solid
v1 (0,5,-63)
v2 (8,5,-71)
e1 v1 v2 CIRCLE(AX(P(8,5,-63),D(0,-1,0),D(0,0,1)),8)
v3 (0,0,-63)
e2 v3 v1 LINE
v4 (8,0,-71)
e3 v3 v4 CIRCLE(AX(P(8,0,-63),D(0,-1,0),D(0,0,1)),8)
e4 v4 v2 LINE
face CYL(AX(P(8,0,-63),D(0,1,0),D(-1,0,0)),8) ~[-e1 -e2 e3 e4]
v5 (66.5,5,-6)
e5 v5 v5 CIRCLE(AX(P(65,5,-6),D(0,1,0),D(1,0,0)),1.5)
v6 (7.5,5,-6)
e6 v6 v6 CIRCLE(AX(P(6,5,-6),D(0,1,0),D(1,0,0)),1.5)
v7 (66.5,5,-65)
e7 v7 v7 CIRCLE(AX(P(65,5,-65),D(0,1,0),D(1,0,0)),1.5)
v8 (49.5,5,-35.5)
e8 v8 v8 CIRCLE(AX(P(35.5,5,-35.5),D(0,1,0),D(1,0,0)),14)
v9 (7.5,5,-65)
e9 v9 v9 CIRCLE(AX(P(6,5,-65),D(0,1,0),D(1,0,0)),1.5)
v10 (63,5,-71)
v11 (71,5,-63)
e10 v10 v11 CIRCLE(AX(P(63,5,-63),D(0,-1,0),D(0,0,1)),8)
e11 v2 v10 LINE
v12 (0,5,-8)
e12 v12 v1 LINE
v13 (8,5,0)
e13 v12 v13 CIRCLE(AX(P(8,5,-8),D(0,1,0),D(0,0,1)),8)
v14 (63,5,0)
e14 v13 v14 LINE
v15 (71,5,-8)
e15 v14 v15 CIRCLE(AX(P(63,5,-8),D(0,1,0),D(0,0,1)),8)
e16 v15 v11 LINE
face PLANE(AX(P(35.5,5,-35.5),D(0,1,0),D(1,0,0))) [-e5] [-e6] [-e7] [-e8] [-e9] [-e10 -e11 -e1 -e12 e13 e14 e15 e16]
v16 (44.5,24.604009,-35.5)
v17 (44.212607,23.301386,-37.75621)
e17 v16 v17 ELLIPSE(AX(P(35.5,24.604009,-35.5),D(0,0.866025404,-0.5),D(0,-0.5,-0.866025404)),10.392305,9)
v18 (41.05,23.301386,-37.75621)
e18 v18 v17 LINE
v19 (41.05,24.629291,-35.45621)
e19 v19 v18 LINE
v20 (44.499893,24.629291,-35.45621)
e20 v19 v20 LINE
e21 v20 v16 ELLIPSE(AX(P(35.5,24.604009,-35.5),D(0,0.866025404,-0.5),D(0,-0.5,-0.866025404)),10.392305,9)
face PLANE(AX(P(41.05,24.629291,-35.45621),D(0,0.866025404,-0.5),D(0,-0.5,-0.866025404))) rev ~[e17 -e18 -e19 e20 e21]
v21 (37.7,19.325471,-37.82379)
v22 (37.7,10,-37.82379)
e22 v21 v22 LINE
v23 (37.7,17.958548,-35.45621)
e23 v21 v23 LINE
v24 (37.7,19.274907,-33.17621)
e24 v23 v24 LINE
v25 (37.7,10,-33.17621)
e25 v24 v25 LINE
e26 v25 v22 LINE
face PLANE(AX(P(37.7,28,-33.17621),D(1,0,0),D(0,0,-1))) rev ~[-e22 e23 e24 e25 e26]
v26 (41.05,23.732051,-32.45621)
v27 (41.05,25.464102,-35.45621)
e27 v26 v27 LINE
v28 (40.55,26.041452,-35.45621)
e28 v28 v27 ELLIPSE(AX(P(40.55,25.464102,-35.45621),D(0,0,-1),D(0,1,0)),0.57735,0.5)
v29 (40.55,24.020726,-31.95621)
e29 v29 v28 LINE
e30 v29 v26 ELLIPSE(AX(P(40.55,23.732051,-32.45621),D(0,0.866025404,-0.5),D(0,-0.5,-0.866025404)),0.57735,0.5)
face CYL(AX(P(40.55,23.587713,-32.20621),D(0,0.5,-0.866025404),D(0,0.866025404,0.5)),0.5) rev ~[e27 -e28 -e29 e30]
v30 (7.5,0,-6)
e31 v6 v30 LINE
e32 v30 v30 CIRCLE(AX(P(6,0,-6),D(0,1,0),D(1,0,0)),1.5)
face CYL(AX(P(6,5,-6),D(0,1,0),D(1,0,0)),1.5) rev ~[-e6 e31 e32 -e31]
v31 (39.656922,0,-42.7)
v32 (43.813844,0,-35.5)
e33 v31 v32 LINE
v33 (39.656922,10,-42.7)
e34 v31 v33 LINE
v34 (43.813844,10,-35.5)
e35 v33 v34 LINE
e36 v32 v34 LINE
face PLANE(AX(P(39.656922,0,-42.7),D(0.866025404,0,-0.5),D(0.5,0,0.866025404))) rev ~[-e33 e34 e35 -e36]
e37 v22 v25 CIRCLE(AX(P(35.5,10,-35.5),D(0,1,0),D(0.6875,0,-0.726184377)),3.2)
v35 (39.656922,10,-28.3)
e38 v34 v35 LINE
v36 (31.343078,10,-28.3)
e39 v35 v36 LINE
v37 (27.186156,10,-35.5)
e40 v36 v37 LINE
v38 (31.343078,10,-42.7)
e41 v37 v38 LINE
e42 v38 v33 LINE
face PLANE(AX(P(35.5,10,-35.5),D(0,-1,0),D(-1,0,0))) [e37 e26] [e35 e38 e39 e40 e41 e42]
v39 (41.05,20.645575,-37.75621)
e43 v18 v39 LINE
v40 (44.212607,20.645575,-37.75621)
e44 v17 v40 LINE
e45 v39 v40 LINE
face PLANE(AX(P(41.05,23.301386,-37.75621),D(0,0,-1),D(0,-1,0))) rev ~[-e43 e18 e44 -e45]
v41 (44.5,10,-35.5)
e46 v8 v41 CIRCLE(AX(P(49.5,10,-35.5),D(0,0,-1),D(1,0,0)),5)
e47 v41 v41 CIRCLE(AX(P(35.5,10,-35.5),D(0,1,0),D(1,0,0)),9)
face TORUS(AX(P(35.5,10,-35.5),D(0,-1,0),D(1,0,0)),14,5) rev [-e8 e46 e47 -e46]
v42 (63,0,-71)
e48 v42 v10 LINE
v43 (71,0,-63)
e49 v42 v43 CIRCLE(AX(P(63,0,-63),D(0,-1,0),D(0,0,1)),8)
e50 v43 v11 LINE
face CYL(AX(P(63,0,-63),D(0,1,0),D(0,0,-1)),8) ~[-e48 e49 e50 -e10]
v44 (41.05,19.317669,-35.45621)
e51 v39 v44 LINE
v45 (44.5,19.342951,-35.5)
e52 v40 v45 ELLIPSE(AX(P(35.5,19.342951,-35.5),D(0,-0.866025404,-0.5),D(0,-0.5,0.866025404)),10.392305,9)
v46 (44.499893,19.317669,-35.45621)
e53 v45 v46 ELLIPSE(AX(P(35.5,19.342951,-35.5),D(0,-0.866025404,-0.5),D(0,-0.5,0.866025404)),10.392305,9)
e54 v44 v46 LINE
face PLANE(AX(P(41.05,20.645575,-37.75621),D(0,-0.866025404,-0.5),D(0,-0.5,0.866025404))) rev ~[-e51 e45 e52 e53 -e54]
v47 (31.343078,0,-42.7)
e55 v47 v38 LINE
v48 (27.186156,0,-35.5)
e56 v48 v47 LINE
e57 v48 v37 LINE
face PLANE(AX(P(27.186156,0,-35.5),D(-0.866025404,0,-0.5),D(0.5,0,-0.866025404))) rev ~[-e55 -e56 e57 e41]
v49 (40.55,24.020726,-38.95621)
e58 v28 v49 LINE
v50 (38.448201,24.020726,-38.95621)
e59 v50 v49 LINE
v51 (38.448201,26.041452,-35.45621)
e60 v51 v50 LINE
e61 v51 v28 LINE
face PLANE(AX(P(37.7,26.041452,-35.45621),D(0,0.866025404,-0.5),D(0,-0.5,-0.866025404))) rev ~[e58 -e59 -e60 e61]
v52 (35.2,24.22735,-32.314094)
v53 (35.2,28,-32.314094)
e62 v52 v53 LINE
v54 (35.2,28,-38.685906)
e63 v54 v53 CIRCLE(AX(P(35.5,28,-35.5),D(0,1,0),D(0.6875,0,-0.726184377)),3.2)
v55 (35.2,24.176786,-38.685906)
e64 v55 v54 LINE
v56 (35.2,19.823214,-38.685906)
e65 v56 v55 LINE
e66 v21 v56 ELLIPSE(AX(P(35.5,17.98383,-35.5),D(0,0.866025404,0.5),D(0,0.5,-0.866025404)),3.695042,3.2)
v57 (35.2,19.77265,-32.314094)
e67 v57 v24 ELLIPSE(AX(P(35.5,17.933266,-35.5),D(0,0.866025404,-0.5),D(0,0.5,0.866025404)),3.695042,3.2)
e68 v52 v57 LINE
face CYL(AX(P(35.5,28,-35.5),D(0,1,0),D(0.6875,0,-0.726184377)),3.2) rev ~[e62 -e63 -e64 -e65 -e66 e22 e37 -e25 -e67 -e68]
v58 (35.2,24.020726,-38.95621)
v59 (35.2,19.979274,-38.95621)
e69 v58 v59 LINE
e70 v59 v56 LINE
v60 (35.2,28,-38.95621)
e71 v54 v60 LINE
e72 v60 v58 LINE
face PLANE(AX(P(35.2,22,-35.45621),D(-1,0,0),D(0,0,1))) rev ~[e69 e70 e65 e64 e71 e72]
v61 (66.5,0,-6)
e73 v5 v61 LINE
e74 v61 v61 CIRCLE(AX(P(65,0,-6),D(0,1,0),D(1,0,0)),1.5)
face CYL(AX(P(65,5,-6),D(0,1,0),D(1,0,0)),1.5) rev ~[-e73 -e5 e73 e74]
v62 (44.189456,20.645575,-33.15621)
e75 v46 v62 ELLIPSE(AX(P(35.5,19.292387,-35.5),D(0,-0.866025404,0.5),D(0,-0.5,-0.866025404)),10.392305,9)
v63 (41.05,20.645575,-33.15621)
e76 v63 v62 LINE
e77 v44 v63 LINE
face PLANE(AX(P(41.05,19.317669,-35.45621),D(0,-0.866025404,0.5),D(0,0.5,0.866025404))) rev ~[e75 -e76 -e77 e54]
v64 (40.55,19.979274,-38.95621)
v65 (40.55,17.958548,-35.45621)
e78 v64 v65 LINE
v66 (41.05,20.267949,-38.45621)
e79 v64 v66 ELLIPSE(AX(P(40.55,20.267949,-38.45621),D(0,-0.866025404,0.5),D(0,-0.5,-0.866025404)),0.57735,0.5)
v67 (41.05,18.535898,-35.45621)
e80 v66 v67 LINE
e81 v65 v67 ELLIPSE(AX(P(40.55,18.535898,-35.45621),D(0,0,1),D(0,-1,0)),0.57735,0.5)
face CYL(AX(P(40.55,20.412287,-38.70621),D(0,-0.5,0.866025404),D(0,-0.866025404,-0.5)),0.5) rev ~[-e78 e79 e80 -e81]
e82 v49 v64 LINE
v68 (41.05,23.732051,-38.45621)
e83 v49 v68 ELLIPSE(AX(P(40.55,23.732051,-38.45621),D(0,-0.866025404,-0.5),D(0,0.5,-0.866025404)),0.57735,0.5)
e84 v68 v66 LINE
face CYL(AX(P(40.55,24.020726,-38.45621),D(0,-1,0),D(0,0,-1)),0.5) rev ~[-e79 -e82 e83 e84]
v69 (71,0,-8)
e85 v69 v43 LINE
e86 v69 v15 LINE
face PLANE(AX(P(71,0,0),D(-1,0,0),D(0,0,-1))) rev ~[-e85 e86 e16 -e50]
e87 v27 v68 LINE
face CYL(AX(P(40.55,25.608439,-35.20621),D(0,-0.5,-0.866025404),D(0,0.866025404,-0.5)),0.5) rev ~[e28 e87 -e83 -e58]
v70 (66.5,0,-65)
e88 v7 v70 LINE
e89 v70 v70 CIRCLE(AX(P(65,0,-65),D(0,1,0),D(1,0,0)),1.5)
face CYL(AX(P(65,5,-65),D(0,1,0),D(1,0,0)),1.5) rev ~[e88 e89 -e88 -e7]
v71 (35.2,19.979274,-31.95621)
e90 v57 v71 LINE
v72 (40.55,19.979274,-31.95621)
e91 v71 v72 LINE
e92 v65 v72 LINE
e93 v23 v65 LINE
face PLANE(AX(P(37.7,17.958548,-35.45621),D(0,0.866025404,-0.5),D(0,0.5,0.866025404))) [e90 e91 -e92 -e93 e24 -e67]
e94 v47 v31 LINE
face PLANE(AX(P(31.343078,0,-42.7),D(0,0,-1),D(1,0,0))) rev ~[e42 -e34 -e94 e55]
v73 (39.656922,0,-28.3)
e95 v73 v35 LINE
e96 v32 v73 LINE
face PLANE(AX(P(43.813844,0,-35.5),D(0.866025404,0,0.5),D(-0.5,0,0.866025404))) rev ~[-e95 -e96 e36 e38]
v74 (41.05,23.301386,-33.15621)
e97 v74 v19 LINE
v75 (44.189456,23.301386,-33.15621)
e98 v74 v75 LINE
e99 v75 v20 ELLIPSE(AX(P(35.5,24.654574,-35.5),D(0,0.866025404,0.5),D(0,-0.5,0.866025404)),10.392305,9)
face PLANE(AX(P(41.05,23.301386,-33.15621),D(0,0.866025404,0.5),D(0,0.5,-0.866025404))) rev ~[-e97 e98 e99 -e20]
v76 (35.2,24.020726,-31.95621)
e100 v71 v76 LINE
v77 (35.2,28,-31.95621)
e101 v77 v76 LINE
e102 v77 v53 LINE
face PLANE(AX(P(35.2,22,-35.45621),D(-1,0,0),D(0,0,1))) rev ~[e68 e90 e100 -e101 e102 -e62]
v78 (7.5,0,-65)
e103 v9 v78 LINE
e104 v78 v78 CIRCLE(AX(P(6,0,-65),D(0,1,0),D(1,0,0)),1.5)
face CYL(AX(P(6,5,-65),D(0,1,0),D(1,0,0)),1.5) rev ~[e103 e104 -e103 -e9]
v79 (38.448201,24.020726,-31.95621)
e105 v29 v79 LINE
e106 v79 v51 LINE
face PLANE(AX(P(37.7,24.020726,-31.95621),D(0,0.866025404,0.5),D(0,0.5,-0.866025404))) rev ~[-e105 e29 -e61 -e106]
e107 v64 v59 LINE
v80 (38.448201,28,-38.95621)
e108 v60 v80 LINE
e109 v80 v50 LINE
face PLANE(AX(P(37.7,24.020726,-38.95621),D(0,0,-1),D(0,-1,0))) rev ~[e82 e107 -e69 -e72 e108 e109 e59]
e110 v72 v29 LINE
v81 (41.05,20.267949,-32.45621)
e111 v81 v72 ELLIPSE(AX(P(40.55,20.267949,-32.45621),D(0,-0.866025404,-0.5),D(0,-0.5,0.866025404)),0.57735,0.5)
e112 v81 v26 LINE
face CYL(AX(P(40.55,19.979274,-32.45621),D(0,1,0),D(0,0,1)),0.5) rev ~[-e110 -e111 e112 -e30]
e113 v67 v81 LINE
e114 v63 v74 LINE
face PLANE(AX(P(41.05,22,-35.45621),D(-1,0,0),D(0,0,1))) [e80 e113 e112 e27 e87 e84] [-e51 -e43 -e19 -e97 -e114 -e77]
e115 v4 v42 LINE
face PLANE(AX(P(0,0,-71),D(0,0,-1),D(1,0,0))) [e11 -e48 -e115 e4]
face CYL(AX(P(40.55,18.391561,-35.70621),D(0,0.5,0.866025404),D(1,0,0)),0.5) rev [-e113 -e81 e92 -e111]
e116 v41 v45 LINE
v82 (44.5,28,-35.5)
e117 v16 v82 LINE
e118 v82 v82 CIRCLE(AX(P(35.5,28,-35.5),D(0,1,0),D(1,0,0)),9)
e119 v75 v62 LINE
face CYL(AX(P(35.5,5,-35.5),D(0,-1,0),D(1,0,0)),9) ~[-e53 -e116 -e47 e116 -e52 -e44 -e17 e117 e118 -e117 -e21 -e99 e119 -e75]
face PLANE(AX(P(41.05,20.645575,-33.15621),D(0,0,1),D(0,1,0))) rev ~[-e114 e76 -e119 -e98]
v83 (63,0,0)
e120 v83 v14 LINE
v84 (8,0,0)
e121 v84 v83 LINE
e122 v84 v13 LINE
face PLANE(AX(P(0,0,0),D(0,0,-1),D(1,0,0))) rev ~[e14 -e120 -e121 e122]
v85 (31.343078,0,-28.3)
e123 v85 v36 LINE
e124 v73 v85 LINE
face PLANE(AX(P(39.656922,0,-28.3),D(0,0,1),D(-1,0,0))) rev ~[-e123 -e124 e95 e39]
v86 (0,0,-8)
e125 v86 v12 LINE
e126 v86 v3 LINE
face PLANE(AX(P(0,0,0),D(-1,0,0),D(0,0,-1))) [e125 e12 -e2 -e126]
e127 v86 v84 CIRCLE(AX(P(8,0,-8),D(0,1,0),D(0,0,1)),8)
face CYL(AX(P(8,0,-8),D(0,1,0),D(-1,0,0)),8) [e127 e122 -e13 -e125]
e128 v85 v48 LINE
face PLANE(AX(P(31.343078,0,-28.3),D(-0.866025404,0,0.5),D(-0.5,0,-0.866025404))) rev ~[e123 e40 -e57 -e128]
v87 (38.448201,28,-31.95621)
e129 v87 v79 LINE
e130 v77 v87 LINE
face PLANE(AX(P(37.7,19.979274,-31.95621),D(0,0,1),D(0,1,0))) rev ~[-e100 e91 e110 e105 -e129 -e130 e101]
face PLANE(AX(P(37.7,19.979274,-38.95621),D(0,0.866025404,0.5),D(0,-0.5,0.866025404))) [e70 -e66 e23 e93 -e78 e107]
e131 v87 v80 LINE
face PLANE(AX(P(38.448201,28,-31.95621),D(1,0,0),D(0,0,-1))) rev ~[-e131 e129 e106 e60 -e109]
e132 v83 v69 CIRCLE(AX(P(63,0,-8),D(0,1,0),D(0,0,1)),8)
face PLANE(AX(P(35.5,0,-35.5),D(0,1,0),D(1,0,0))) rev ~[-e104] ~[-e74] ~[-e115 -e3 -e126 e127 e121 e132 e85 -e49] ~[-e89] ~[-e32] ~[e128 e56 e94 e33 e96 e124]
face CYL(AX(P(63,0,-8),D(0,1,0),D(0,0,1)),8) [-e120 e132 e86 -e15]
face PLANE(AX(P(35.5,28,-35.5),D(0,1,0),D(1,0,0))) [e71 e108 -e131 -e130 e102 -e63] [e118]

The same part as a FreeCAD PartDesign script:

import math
import FreeCAD as App
import Part
import Sketcher

V = App.Vector
Q = App.Units.Quantity


def edges_at(feature, points):
    """Names of the edges that pass closest to the given points."""
    edges = feature.Shape.Edges
    near = lambda p: min(range(len(edges)), key=lambda i: edges[i].distToShape(Part.Vertex(*p))[0])
    return sorted({f"Edge{near(p) + 1}" for p in points})


def add_polygon(sketch, points):
    """Adds a closed chain of lines whose ends are joined by coincident constraints."""
    first, n = sketch.GeometryCount, len(points)
    for a, b in zip(points, points[1:] + points[:1]):
        sketch.addGeometry(Part.LineSegment(App.Vector(*a, 0), App.Vector(*b, 0)), False)
    for i in range(n):
        sketch.addConstraint(Sketcher.Constraint("Coincident", first + i, 2, first + (i + 1) % n, 1))

doc = App.newDocument("Part")
body = doc.addObject("PartDesign::Body", "Body")

sketch1 = body.newObject("Sketcher::SketchObject", "Sketch")
sketch1.AttachmentSupport = (doc.getObject("XZ_Plane"), [""])
sketch1.MapMode = "FlatFace"
add_polygon(sketch1, [(0, -71), (0, 0), (71, 0), (71, -71)])
sketch1.addConstraint(Sketcher.Constraint("Vertical", 0))
sketch1.addConstraint(Sketcher.Constraint("Horizontal", 1))
sketch1.addConstraint(Sketcher.Constraint("Vertical", 2))
sketch1.addConstraint(Sketcher.Constraint("Horizontal", 3))
sketch1.addConstraint(Sketcher.Constraint("Coincident", 0, 2, -1, 1))
sketch1.addConstraint(Sketcher.Constraint("Equal", 3, 0))
sketch1.addConstraint(Sketcher.Constraint("DistanceX", 1, 1, 1, 2, 71.0))
pad1 = body.newObject("PartDesign::Pad", "Pad")
pad1.Profile = sketch1
pad1.Length = 5
pad1.Reversed = True

sketch2 = body.newObject("Sketcher::SketchObject", "Sketch001")
sketch2.AttachmentSupport = (doc.getObject("XZ_Plane"), [""])
sketch2.MapMode = "FlatFace"
sketch2.AttachmentOffset = App.Placement(V(0, 0, -5), App.Rotation())
sketch2.addGeometry(Part.Circle(V(36, -36, 0), V(0, 0, 1), 9), False)
sketch2.addConstraint(Sketcher.Constraint("Diameter", 0, 18.0))
sketch2.addConstraint(Sketcher.Constraint("DistanceX", -1, 1, 0, 3, 35.5))
sketch2.addConstraint(Sketcher.Constraint("DistanceY", 0, 3, -1, 1, 35.5))
pad2 = body.newObject("PartDesign::Pad", "Pad001")
pad2.Profile = sketch2
pad2.Length = 23
pad2.Reversed = True
doc.recompute()

fillet = body.newObject("PartDesign::Fillet", "Fillet")
fillet.Base = (pad2, edges_at(pad2, [(26.5, 5, -35.5)]))
fillet.Radius = 5

sketch3 = body.newObject("Sketcher::SketchObject", "Sketch002")
sketch3.AttachmentSupport = (doc.getObject("XZ_Plane"), [""])
sketch3.MapMode = "FlatFace"
sketch3.AttachmentOffset = App.Placement(V(0, 0, -28), App.Rotation())
sketch3.addGeometry(Part.LineSegment(V(37.7, -33.2, 0), V(37.7, -37.8, 0)), False)
sketch3.addGeometry(Part.ArcOfCircle(Part.Circle(V(35.5, -35.5, 0), V(0, 0, 1), 3.2), math.radians(47), math.radians(313)), False)
sketch3.addConstraint(Sketcher.Constraint("Coincident", 0, 1, 1, 1))
sketch3.addConstraint(Sketcher.Constraint("Coincident", 1, 2, 0, 2))
sketch3.addConstraint(Sketcher.Constraint("Vertical", 0))
sketch3.addConstraint(Sketcher.Constraint("Radius", 1, 3.2))
sketch3.addConstraint(Sketcher.Constraint("DistanceX", -1, 1, 1, 3, 35.5))
sketch3.addConstraint(Sketcher.Constraint("DistanceY", 1, 3, -1, 1, 35.5))
sketch3.addConstraint(Sketcher.Constraint("DistanceX", -1, 1, 0, 1, 37.7))
pocket1 = body.newObject("PartDesign::Pocket", "Pocket")
pocket1.Profile = sketch3
pocket1.Length = 46
pocket1.Reversed = True
doc.recompute()

fillet2 = body.newObject("PartDesign::Fillet", "Fillet001")
fillet2.Base = (pocket1, edges_at(pocket1, [
    (0, 2.5, -71),
    (71, 2.5, -71),
    (71, 2.5, 0),
    (0, 2.5, 0),
]))
fillet2.Radius = 8

sketch4 = body.newObject("Sketcher::SketchObject", "Sketch003")
sketch4.AttachmentSupport = (doc.getObject("XZ_Plane"), [""])
sketch4.MapMode = "FlatFace"
sketch4.AttachmentOffset = App.Placement(V(0, 0, -5), App.Rotation())
sketch4.addGeometry(Part.Circle(V(65, -65, 0), V(0, 0, 1), 1.5), False)
sketch4.addGeometry(Part.Circle(V(65, -6, 0), V(0, 0, 1), 1.5), False)
sketch4.addGeometry(Part.Circle(V(6, -6, 0), V(0, 0, 1), 1.5), False)
sketch4.addGeometry(Part.Circle(V(6, -65, 0), V(0, 0, 1), 1.5), False)
sketch4.addConstraint(Sketcher.Constraint("Equal", 0, 1))
sketch4.addConstraint(Sketcher.Constraint("Equal", 1, 2))
sketch4.addConstraint(Sketcher.Constraint("Equal", 2, 3))
sketch4.addConstraint(Sketcher.Constraint("Horizontal", 1, 3, 2, 3))
sketch4.addConstraint(Sketcher.Constraint("Horizontal", 0, 3, 3, 3))
sketch4.addConstraint(Sketcher.Constraint("Vertical", 0, 3, 1, 3))
sketch4.addConstraint(Sketcher.Constraint("Vertical", 2, 3, 3, 3))
sketch4.addConstraint(Sketcher.Constraint("Diameter", 0, 3.0))
sketch4.addConstraint(Sketcher.Constraint("DistanceX", -1, 1, 0, 3, 65.0))
sketch4.addConstraint(Sketcher.Constraint("DistanceY", 0, 3, -1, 1, 65.0))
sketch4.addConstraint(Sketcher.Constraint("DistanceY", 1, 3, -1, 1, 6.0))
sketch4.addConstraint(Sketcher.Constraint("DistanceX", -1, 1, 2, 3, 6.0))
pocket2 = body.newObject("PartDesign::Pocket", "Pocket001")
pocket2.Profile = sketch4
pocket2.Type = "ThroughAll"
pocket2.Reversed = True

sketch5 = body.newObject("Sketcher::SketchObject", "Sketch004")
sketch5.AttachmentSupport = (doc.getObject("XZ_Plane"), [""])
sketch5.MapMode = "FlatFace"
add_polygon(sketch5, [(44, -36), (40, -28), (31, -28), (27, -36), (31, -43), (40, -43)])
sketch5.addConstraint(Sketcher.Constraint("Horizontal", 1))
sketch5.addConstraint(Sketcher.Constraint("Horizontal", 4))
sketch5.addConstraint(Sketcher.Constraint("Parallel", 0, 3))
sketch5.addConstraint(Sketcher.Constraint("Parallel", 2, 5))
sketch5.addConstraint(Sketcher.Constraint("Horizontal", 2, 2, 5, 2))
sketch5.addConstraint(Sketcher.Constraint("Vertical", 1, 2, 3, 2))
sketch5.addConstraint(Sketcher.Constraint("Vertical", 0, 2, 4, 2))
sketch5.addConstraint(Sketcher.Constraint("Angle", 0, Q("120 deg")))
sketch5.addConstraint(Sketcher.Constraint("DistanceY", 0, 2, -1, 1, 28.3))
sketch5.addConstraint(Sketcher.Constraint("DistanceY", 2, 2, -1, 1, 35.5))
sketch5.addConstraint(Sketcher.Constraint("DistanceX", 1, 2, 1, 1, 8.313844))
sketch5.addConstraint(Sketcher.Constraint("DistanceX", -1, 1, 0, 2, 39.656922))
pocket3 = body.newObject("PartDesign::Pocket", "Pocket002")
pocket3.Profile = sketch5
pocket3.Length = 10

sketch6 = body.newObject("Sketcher::SketchObject", "Sketch005")
sketch6.AttachmentSupport = (doc.getObject("YZ_Plane"), [""])
sketch6.MapMode = "FlatFace"
sketch6.AttachmentOffset = App.Placement(V(0, 0, 37.7), App.Rotation())
add_polygon(sketch6, [(26, -35.5), (24, -39), (20, -39), (18, -35.5), (20, -32), (24, -32)])
sketch6.addConstraint(Sketcher.Constraint("Horizontal", 1))
sketch6.addConstraint(Sketcher.Constraint("Horizontal", 4))
sketch6.addConstraint(Sketcher.Constraint("Parallel", 0, 3))
sketch6.addConstraint(Sketcher.Constraint("Parallel", 2, 5))
sketch6.addConstraint(Sketcher.Constraint("Horizontal", 2, 2, 5, 2))
sketch6.addConstraint(Sketcher.Constraint("Vertical", 1, 2, 3, 2))
sketch6.addConstraint(Sketcher.Constraint("Vertical", 0, 2, 4, 2))
sketch6.addConstraint(Sketcher.Constraint("Angle", 0, Q("-120 deg")))
sketch6.addConstraint(Sketcher.Constraint("DistanceY", 1, 2, 3, 2, 7.0))
sketch6.addConstraint(Sketcher.Constraint("DistanceX", 1, 2, 1, 1, 4.041452))
sketch6.addConstraint(Sketcher.Constraint("DistanceY", 0, 2, -1, 1, 38.95621))
sketch6.addConstraint(Sketcher.Constraint("DistanceX", -1, 1, 2, 2, 17.958548))
pocket4 = body.newObject("PartDesign::Pocket", "Pocket003")
pocket4.Profile = sketch6
pocket4.Type = "TwoLengths"
pocket4.Length = 2.5
pocket4.Length2 = 3.35
doc.recompute()

fillet3 = body.newObject("PartDesign::Fillet", "Fillet002")
fillet3.Base = (pocket4, edges_at(pocket4, [
    (41.05, 25.031, -33.706),
    (41.05, 25.031, -37.206),
    (41.05, 22, -38.956),
    (41.05, 18.969, -37.206),
    (41.05, 18.969, -33.706),
    (41.05, 22, -31.956),
]))
fillet3.Radius = 0.5

sketch7 = body.newObject("Sketcher::SketchObject", "Sketch006")
sketch7.AttachmentSupport = (doc.getObject("YZ_Plane"), [""])
sketch7.MapMode = "FlatFace"
sketch7.AttachmentOffset = App.Placement(V(0, 0, 41.05), App.Rotation())
add_polygon(sketch7, [(24.6, -35.5), (23.3, -37.8), (20.6, -37.8), (19.3, -35.5), (20.6, -33.2), (23.3, -33.2)])
sketch7.addConstraint(Sketcher.Constraint("Horizontal", 1))
sketch7.addConstraint(Sketcher.Constraint("Horizontal", 4))
sketch7.addConstraint(Sketcher.Constraint("Parallel", 0, 3))
sketch7.addConstraint(Sketcher.Constraint("Parallel", 2, 5))
sketch7.addConstraint(Sketcher.Constraint("Horizontal", 2, 2, 5, 2))
sketch7.addConstraint(Sketcher.Constraint("Vertical", 1, 2, 3, 2))
sketch7.addConstraint(Sketcher.Constraint("Vertical", 0, 2, 4, 2))
sketch7.addConstraint(Sketcher.Constraint("Angle", 0, Q("-120 deg")))
sketch7.addConstraint(Sketcher.Constraint("DistanceY", 1, 2, 2, 2, 2.3))
sketch7.addConstraint(Sketcher.Constraint("DistanceX", 1, 2, 1, 1, 2.655811))
sketch7.addConstraint(Sketcher.Constraint("DistanceY", 0, 2, -1, 1, 37.75621))
sketch7.addConstraint(Sketcher.Constraint("DistanceX", -1, 1, 2, 2, 19.317669))
pocket5 = body.newObject("PartDesign::Pocket", "Pocket004")
pocket5.Profile = sketch7
pocket5.Type = "ThroughAll"
pocket5.Reversed = True

sketch8 = body.newObject("Sketcher::SketchObject", "Sketch007")
sketch8.AttachmentSupport = (doc.getObject("XZ_Plane"), [""])
sketch8.MapMode = "FlatFace"
sketch8.AttachmentOffset = App.Placement(V(0, 0, -28), App.Rotation())
add_polygon(sketch8, [(35.2, -39), (35.2, -32), (38.4, -32), (38.4, -39)])
sketch8.addConstraint(Sketcher.Constraint("Vertical", 0))
sketch8.addConstraint(Sketcher.Constraint("Horizontal", 1))
sketch8.addConstraint(Sketcher.Constraint("Vertical", 2))
sketch8.addConstraint(Sketcher.Constraint("Horizontal", 3))
sketch8.addConstraint(Sketcher.Constraint("DistanceY", 0, 1, 0, 2, 7.0))
sketch8.addConstraint(Sketcher.Constraint("DistanceX", -1, 1, 0, 2, 35.2))
sketch8.addConstraint(Sketcher.Constraint("DistanceX", 1, 1, 1, 2, 3.248201))
sketch8.addConstraint(Sketcher.Constraint("DistanceY", 0, 2, -1, 1, 31.95621))
pocket6 = body.newObject("PartDesign::Pocket", "Pocket005")
pocket6.Profile = sketch8
pocket6.Length = 5
pocket6.Reversed = True

doc.recompute()
